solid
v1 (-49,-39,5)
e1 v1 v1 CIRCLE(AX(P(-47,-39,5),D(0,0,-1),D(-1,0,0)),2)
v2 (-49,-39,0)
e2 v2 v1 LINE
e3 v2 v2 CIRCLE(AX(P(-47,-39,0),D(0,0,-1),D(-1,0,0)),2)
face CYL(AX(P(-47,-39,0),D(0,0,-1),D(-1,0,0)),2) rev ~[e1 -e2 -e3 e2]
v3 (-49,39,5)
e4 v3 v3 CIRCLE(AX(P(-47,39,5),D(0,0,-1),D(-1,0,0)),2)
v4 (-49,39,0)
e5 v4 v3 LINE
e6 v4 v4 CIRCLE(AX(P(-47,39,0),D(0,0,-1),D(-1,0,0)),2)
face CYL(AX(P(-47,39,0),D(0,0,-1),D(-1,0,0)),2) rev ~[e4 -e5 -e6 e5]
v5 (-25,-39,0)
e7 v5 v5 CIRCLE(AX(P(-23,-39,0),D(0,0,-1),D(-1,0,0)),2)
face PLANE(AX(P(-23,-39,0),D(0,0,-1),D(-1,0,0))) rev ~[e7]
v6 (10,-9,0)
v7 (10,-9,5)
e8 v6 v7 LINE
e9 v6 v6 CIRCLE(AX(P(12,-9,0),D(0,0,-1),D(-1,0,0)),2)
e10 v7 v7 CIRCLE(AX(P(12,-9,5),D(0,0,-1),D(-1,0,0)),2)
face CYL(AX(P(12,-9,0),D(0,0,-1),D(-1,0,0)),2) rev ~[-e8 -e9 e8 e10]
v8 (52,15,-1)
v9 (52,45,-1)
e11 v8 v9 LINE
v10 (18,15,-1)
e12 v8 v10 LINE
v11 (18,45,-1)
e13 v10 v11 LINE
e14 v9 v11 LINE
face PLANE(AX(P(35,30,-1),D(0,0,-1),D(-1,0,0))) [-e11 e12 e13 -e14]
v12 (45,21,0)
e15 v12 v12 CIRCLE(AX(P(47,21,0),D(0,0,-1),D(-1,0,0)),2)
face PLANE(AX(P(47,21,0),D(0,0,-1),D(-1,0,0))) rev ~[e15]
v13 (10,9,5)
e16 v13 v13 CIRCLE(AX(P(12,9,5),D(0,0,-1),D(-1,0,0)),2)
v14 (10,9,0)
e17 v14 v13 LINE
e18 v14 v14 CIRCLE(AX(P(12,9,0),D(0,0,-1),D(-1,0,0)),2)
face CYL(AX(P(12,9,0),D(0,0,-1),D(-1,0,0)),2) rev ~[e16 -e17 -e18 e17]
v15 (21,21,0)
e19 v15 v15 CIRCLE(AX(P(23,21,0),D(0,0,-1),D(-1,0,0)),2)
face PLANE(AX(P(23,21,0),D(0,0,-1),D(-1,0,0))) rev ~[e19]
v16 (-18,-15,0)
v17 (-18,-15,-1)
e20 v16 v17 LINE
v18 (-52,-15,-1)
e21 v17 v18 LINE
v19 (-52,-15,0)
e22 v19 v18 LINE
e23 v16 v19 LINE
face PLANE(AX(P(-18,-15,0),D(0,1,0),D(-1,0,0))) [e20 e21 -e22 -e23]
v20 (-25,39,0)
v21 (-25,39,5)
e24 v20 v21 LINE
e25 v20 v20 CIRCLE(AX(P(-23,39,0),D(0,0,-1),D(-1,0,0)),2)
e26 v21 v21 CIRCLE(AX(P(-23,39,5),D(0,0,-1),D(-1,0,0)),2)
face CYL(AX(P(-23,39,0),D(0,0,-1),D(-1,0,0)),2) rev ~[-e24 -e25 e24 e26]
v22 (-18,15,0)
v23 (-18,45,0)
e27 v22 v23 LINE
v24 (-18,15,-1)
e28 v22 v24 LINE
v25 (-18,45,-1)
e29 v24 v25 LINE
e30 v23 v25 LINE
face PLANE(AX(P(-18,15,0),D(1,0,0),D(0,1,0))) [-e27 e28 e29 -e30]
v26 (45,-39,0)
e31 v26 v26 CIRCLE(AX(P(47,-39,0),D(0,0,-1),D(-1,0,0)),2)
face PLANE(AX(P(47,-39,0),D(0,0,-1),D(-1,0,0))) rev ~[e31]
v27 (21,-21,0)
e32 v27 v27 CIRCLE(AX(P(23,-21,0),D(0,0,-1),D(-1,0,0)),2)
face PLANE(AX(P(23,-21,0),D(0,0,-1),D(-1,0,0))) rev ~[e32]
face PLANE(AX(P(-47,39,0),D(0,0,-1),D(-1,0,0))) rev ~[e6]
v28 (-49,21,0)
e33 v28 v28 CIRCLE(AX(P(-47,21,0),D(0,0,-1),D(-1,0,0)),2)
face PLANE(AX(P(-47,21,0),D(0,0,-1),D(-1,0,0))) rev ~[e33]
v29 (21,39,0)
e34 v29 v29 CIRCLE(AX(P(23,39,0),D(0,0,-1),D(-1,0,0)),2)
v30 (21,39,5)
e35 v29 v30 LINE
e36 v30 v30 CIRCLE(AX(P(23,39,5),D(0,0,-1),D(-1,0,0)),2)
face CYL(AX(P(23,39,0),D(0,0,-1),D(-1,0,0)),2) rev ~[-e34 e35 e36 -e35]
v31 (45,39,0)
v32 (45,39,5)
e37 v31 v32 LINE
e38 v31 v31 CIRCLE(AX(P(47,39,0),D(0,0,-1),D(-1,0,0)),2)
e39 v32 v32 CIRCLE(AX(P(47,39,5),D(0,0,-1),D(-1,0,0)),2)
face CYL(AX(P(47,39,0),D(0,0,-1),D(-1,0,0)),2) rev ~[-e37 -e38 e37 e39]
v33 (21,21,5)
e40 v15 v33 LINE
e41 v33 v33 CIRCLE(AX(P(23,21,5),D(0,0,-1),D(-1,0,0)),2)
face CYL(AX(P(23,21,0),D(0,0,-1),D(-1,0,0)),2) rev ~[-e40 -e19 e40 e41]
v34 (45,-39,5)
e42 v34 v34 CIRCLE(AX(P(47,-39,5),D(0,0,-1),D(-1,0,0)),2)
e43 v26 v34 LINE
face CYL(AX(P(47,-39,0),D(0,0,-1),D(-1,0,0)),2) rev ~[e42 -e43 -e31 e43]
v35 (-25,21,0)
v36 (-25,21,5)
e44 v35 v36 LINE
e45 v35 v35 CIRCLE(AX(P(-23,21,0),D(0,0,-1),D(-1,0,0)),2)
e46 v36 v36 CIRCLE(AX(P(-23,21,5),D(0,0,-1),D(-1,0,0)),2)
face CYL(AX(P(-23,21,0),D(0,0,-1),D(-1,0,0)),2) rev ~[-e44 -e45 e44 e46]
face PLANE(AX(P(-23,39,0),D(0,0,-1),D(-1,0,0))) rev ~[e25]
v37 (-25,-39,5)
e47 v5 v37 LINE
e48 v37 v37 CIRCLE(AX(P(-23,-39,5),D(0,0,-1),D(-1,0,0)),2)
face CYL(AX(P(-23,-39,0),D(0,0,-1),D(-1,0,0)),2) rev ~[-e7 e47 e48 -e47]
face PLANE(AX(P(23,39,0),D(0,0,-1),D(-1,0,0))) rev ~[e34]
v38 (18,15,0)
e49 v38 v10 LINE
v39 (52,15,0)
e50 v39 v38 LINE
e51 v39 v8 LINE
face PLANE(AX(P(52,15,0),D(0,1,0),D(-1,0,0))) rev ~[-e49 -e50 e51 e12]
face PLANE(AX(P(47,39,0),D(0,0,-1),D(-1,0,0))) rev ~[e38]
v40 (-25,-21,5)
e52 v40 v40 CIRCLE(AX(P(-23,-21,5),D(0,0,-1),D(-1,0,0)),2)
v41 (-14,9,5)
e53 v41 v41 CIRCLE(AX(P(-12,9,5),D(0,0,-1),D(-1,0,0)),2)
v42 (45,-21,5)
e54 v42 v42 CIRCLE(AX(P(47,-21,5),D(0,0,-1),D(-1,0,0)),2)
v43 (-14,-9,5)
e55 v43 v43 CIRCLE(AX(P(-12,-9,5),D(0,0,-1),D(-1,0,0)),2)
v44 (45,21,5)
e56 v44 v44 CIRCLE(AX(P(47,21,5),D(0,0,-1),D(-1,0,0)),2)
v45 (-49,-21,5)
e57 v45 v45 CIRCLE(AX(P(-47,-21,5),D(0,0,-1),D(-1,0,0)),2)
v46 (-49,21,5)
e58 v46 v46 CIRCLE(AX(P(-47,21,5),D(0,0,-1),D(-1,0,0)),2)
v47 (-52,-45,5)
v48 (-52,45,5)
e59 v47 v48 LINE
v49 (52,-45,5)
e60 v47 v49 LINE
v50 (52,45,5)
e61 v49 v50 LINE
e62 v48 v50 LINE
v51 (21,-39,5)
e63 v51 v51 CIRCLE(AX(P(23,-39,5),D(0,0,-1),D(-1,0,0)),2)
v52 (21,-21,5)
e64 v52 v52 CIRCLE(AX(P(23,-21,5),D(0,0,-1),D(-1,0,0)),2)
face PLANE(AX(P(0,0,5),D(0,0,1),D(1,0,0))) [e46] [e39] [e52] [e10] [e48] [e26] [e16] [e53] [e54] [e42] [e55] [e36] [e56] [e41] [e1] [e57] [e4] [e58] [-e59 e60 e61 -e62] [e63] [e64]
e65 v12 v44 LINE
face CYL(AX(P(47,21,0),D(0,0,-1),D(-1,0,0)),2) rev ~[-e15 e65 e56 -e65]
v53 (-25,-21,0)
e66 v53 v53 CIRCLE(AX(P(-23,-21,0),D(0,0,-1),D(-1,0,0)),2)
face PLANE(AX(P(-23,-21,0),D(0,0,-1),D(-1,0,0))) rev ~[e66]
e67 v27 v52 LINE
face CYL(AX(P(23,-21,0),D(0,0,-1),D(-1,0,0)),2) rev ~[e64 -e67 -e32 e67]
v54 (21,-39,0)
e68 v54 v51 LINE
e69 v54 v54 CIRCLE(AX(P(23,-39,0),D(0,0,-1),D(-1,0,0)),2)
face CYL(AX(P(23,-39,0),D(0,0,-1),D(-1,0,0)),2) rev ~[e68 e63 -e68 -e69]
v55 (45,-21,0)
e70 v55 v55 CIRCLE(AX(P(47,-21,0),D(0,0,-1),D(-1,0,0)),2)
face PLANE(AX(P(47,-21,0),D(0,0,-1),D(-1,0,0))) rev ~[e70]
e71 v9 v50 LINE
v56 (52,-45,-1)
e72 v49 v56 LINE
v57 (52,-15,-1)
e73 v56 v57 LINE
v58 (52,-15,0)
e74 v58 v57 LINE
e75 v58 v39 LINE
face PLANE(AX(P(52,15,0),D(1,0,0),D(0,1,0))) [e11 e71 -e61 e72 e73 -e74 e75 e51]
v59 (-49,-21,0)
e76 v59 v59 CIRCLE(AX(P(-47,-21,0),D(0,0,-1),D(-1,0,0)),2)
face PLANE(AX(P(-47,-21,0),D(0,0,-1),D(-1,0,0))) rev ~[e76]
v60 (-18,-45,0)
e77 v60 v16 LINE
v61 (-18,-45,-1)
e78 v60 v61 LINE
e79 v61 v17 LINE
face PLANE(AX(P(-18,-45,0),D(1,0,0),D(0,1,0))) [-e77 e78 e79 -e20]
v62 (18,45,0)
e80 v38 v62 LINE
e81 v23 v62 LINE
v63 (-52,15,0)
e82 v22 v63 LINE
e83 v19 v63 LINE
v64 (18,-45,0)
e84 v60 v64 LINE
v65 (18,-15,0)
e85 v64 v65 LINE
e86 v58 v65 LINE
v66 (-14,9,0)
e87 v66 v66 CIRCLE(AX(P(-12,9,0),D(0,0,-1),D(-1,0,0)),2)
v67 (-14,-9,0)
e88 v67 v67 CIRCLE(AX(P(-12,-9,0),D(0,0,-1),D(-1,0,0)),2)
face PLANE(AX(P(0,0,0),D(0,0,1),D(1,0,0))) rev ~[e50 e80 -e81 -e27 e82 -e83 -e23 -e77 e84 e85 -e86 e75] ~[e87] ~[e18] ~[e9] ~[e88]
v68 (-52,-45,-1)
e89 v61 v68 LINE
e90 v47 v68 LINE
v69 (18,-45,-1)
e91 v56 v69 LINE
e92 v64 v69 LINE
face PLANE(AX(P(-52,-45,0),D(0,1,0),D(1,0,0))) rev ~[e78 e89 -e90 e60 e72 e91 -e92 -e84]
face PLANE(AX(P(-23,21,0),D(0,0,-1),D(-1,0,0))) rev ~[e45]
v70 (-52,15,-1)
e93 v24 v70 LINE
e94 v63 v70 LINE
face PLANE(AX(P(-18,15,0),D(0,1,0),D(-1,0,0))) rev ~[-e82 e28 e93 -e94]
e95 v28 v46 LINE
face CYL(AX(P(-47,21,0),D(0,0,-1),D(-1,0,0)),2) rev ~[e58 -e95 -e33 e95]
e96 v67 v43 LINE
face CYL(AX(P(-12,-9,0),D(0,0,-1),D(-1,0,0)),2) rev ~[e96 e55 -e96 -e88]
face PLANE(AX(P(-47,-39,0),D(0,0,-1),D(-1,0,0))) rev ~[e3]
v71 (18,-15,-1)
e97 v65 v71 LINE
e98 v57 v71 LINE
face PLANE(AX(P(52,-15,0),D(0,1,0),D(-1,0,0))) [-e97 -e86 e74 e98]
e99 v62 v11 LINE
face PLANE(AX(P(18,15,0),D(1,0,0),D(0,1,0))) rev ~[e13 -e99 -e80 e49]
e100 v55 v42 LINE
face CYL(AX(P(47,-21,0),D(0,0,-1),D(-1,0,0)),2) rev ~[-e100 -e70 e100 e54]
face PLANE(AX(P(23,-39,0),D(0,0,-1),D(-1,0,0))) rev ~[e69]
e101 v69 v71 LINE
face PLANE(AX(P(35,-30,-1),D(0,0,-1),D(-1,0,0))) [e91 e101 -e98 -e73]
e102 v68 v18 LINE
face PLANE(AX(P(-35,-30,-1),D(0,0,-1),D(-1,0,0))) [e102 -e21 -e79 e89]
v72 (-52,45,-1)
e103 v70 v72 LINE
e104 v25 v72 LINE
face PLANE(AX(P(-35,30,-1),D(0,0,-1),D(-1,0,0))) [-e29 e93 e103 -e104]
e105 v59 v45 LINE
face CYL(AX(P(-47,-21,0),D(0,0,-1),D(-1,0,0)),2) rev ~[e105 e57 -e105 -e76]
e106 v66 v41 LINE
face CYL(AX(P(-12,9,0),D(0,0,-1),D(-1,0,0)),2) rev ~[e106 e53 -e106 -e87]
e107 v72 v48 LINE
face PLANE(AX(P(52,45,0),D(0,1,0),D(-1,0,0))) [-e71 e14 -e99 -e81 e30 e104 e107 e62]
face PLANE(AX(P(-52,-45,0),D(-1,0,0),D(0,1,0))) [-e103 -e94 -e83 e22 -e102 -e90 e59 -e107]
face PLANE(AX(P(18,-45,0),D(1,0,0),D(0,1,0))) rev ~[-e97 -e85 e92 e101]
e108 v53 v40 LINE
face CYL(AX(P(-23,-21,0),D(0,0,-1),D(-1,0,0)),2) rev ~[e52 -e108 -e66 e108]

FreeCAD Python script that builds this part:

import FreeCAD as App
import Part
import Sketcher
Q = App.Units.Quantity

doc = App.newDocument("Part")
body = doc.addObject("PartDesign::Body", "Body")

# Sketch on XY plane
sketch1 = body.newObject("Sketcher::SketchObject", "Sketch")
sketch1.AttachmentSupport = (doc.getObject("XY_Plane"), [""])
sketch1.MapMode = "FlatFace"
sketch1.addGeometry([
    Part.LineSegment(App.Vector(-52, 45, 0), App.Vector(-52, -45, 0)),
    Part.LineSegment(App.Vector(-52, -45, 0), App.Vector(52, -45, 0)),
    Part.LineSegment(App.Vector(52, -45, 0), App.Vector(52, 45, 0)),
    Part.LineSegment(App.Vector(52, 45, 0), App.Vector(-52, 45, 0)),
], False)
sketch1.addConstraint([
    Sketcher.Constraint("Coincident", 0, 2, 1, 1),
    Sketcher.Constraint("Coincident", 1, 2, 2, 1),
    Sketcher.Constraint("Coincident", 2, 2, 3, 1),
    Sketcher.Constraint("Coincident", 3, 2, 0, 1),
    Sketcher.Constraint("Vertical", 0),
    Sketcher.Constraint("Horizontal", 1),
    Sketcher.Constraint("Vertical", 2),
    Sketcher.Constraint("Horizontal", 3),
    Sketcher.Constraint("Symmetric", 0, 2, 2, 2, -1, 1),
    Sketcher.Constraint("DistanceX", 1, 1, 1, 2, Q("104 mm")),
    Sketcher.Constraint("DistanceY", 0, 2, 0, 1, Q("90 mm")),
])
pad1 = body.newObject("PartDesign::Pad", "Pad")
pad1.Profile = sketch1
pad1.Length = 5

# Sketch on XY plane
sketch2 = body.newObject("Sketcher::SketchObject", "Sketch001")
sketch2.AttachmentSupport = (doc.getObject("XY_Plane"), [""])
sketch2.MapMode = "FlatFace"
sketch2.addGeometry([
    Part.LineSegment(App.Vector(52, 45, 0), App.Vector(52, 15, 0)),  # 0
    Part.LineSegment(App.Vector(52, 15, 0), App.Vector(18, 15, 0)),  # 1
    Part.LineSegment(App.Vector(18, 15, 0), App.Vector(18, 45, 0)),  # 2
    Part.LineSegment(App.Vector(18, 45, 0), App.Vector(52, 45, 0)),  # 3
    Part.LineSegment(App.Vector(52, -15, 0), App.Vector(52, -45, 0)),  # 4
    Part.LineSegment(App.Vector(52, -45, 0), App.Vector(18, -45, 0)),  # 5
    Part.LineSegment(App.Vector(18, -45, 0), App.Vector(18, -15, 0)),  # 6
    Part.LineSegment(App.Vector(18, -15, 0), App.Vector(52, -15, 0)),  # 7
    Part.LineSegment(App.Vector(-18, 45, 0), App.Vector(-18, 15, 0)),  # 8
    Part.LineSegment(App.Vector(-18, 15, 0), App.Vector(-52, 15, 0)),  # 9
    Part.LineSegment(App.Vector(-52, 15, 0), App.Vector(-52, 45, 0)),  # 10
    Part.LineSegment(App.Vector(-52, 45, 0), App.Vector(-18, 45, 0)),  # 11
    Part.LineSegment(App.Vector(-18, -15, 0), App.Vector(-18, -45, 0)),  # 12
    Part.LineSegment(App.Vector(-18, -45, 0), App.Vector(-52, -45, 0)),  # 13
    Part.LineSegment(App.Vector(-52, -45, 0), App.Vector(-52, -15, 0)),  # 14
    Part.LineSegment(App.Vector(-52, -15, 0), App.Vector(-18, -15, 0)),  # 15
], False)
sketch2.addConstraint([
    Sketcher.Constraint("Coincident", 0, 2, 1, 1),
    Sketcher.Constraint("Coincident", 1, 2, 2, 1),
    Sketcher.Constraint("Coincident", 2, 2, 3, 1),
    Sketcher.Constraint("Coincident", 3, 2, 0, 1),
    Sketcher.Constraint("Coincident", 4, 2, 5, 1),
    Sketcher.Constraint("Coincident", 5, 2, 6, 1),
    Sketcher.Constraint("Coincident", 6, 2, 7, 1),
    Sketcher.Constraint("Coincident", 7, 2, 4, 1),
    Sketcher.Constraint("Coincident", 8, 2, 9, 1),
    Sketcher.Constraint("Coincident", 9, 2, 10, 1),
    Sketcher.Constraint("Coincident", 10, 2, 11, 1),
    Sketcher.Constraint("Coincident", 11, 2, 8, 1),
    Sketcher.Constraint("Coincident", 12, 2, 13, 1),
    Sketcher.Constraint("Coincident", 13, 2, 14, 1),
    Sketcher.Constraint("Coincident", 14, 2, 15, 1),
    Sketcher.Constraint("Coincident", 15, 2, 12, 1),
    Sketcher.Constraint("Vertical", 0),
    Sketcher.Constraint("Horizontal", 1),
    Sketcher.Constraint("Vertical", 2),
    Sketcher.Constraint("Horizontal", 3),
    Sketcher.Constraint("Vertical", 4),
    Sketcher.Constraint("Horizontal", 5),
    Sketcher.Constraint("Vertical", 6),
    Sketcher.Constraint("Horizontal", 7),
    Sketcher.Constraint("Vertical", 8),
    Sketcher.Constraint("Horizontal", 9),
    Sketcher.Constraint("Vertical", 10),
    Sketcher.Constraint("Horizontal", 11),
    Sketcher.Constraint("Vertical", 12),
    Sketcher.Constraint("Horizontal", 13),
    Sketcher.Constraint("Vertical", 14),
    Sketcher.Constraint("Horizontal", 15),
    Sketcher.Constraint("Symmetric", 6, 2, 8, 2, -1, 1),
    Sketcher.Constraint("Symmetric", 4, 2, 10, 2, -1, 1),
    Sketcher.Constraint("Symmetric", 2, 2, 12, 2, -1, 1),
    Sketcher.Constraint("Symmetric", 0, 2, 14, 2, -1, 1),
    Sketcher.Constraint("Symmetric", 1, 2, 8, 2, -2),
    Sketcher.Constraint("Symmetric", 3, 2, 10, 2, -2),
    Sketcher.Constraint("DistanceX", 1, 2, 1, 1, Q("34 mm")),
    Sketcher.Constraint("DistanceY", 0, 2, 0, 1, Q("30 mm")),
    Sketcher.Constraint("DistanceX", -1, 1, 0, 2, Q("52 mm")),
    Sketcher.Constraint("DistanceY", -1, 1, 0, 2, Q("15 mm")),
])
pad2 = body.newObject("PartDesign::Pad", "Pad001")
pad2.Profile = sketch2
pad2.Length = 1
pad2.Reversed = True

# Sketch on XY plane
sketch3 = body.newObject("Sketcher::SketchObject", "Sketch002")
sketch3.AttachmentSupport = (doc.getObject("XY_Plane"), [""])
sketch3.MapMode = "FlatFace"
sketch3.addGeometry([
    Part.Circle(App.Vector(47, 39, 0), App.Vector(0, 0, 1), 2),  # 0
    Part.Circle(App.Vector(23, 39, 0), App.Vector(0, 0, 1), 2),  # 1
    Part.Circle(App.Vector(47, 21, 0), App.Vector(0, 0, 1), 2),  # 2
    Part.Circle(App.Vector(23, 21, 0), App.Vector(0, 0, 1), 2),  # 3
    Part.Circle(App.Vector(-23, 39, 0), App.Vector(0, 0, 1), 2),  # 4
    Part.Circle(App.Vector(-23, 21, 0), App.Vector(0, 0, 1), 2),  # 5
    Part.Circle(App.Vector(-47, 21, 0), App.Vector(0, 0, 1), 2),  # 6
    Part.Circle(App.Vector(-47, 39, 0), App.Vector(0, 0, 1), 2),  # 7
    Part.Circle(App.Vector(-23, -21, 0), App.Vector(0, 0, 1), 2),  # 8
    Part.Circle(App.Vector(-23, -39, 0), App.Vector(0, 0, 1), 2),  # 9
    Part.Circle(App.Vector(-47, -39, 0), App.Vector(0, 0, 1), 2),  # 10
    Part.Circle(App.Vector(-47, -21, 0), App.Vector(0, 0, 1), 2),  # 11
    Part.Circle(App.Vector(23, -21, 0), App.Vector(0, 0, 1), 2),  # 12
    Part.Circle(App.Vector(23, -39, 0), App.Vector(0, 0, 1), 2),  # 13
    Part.Circle(App.Vector(47, -39, 0), App.Vector(0, 0, 1), 2),  # 14
    Part.Circle(App.Vector(47, -21, 0), App.Vector(0, 0, 1), 2),  # 15
    Part.Circle(App.Vector(12, 9, 0), App.Vector(0, 0, 1), 2),  # 16
    Part.Circle(App.Vector(12, -9, 0), App.Vector(0, 0, 1), 2),  # 17
    Part.Circle(App.Vector(-12, -9, 0), App.Vector(0, 0, 1), 2),  # 18
    Part.Circle(App.Vector(-12, 9, 0), App.Vector(0, 0, 1), 2),  # 19
], False)
sketch3.addConstraint([
    Sketcher.Constraint("Equal", 0, 1),
    Sketcher.Constraint("Equal", 1, 2),
    Sketcher.Constraint("Equal", 2, 3),
    Sketcher.Constraint("Equal", 3, 4),
    Sketcher.Constraint("Equal", 4, 5),
    Sketcher.Constraint("Equal", 5, 6),
    Sketcher.Constraint("Equal", 6, 7),
    Sketcher.Constraint("Equal", 7, 8),
    Sketcher.Constraint("Equal", 8, 9),
    Sketcher.Constraint("Equal", 9, 10),
    Sketcher.Constraint("Equal", 10, 11),
    Sketcher.Constraint("Equal", 11, 12),
    Sketcher.Constraint("Equal", 12, 13),
    Sketcher.Constraint("Equal", 13, 14),
    Sketcher.Constraint("Equal", 14, 15),
    Sketcher.Constraint("Equal", 15, 16),
    Sketcher.Constraint("Equal", 16, 17),
    Sketcher.Constraint("Equal", 17, 18),
    Sketcher.Constraint("Equal", 18, 19),
    Sketcher.Constraint("Symmetric", 3, 3, 8, 3, -1, 1),
    Sketcher.Constraint("Symmetric", 1, 3, 9, 3, -1, 1),
    Sketcher.Constraint("Symmetric", 0, 3, 10, 3, -1, 1),
    Sketcher.Constraint("Symmetric", 2, 3, 11, 3, -1, 1),
    Sketcher.Constraint("Symmetric", 5, 3, 12, 3, -1, 1),
    Sketcher.Constraint("Symmetric", 4, 3, 13, 3, -1, 1),
    Sketcher.Constraint("Symmetric", 7, 3, 14, 3, -1, 1),
    Sketcher.Constraint("Symmetric", 6, 3, 15, 3, -1, 1),
    Sketcher.Constraint("Symmetric", 16, 3, 18, 3, -1, 1),
    Sketcher.Constraint("Symmetric", 17, 3, 19, 3, -1, 1),
    Sketcher.Constraint("Symmetric", 1, 3, 4, 3, -2),
    Sketcher.Constraint("Symmetric", 3, 3, 5, 3, -2),
    Sketcher.Constraint("Symmetric", 2, 3, 6, 3, -2),
    Sketcher.Constraint("Symmetric", 0, 3, 7, 3, -2),
    Sketcher.Constraint("Symmetric", 17, 3, 18, 3, -2),
    Sketcher.Constraint("Horizontal", 0, 3, 1, 3),
    Sketcher.Constraint("Horizontal", 2, 3, 3, 3),
    Sketcher.Constraint("Vertical", 0, 3, 2, 3),
    Sketcher.Constraint("Vertical", 1, 3, 3, 3),
    Sketcher.Constraint("Diameter", 0, Q("4 mm")),
    Sketcher.Constraint("DistanceX", -1, 1, 0, 3, Q("47 mm")),
    Sketcher.Constraint("DistanceY", -1, 1, 0, 3, Q("39 mm")),
    Sketcher.Constraint("DistanceX", -1, 1, 1, 3, Q("23 mm")),
    Sketcher.Constraint("DistanceY", -1, 1, 2, 3, Q("21 mm")),
    Sketcher.Constraint("DistanceX", -1, 1, 16, 3, Q("12 mm")),
    Sketcher.Constraint("DistanceY", -1, 1, 16, 3, Q("9 mm")),
])
pocket1 = body.newObject("PartDesign::Pocket", "Pocket")
pocket1.Profile = sketch3
pocket1.Length = 5
pocket1.Reversed = True

doc.recompute()
